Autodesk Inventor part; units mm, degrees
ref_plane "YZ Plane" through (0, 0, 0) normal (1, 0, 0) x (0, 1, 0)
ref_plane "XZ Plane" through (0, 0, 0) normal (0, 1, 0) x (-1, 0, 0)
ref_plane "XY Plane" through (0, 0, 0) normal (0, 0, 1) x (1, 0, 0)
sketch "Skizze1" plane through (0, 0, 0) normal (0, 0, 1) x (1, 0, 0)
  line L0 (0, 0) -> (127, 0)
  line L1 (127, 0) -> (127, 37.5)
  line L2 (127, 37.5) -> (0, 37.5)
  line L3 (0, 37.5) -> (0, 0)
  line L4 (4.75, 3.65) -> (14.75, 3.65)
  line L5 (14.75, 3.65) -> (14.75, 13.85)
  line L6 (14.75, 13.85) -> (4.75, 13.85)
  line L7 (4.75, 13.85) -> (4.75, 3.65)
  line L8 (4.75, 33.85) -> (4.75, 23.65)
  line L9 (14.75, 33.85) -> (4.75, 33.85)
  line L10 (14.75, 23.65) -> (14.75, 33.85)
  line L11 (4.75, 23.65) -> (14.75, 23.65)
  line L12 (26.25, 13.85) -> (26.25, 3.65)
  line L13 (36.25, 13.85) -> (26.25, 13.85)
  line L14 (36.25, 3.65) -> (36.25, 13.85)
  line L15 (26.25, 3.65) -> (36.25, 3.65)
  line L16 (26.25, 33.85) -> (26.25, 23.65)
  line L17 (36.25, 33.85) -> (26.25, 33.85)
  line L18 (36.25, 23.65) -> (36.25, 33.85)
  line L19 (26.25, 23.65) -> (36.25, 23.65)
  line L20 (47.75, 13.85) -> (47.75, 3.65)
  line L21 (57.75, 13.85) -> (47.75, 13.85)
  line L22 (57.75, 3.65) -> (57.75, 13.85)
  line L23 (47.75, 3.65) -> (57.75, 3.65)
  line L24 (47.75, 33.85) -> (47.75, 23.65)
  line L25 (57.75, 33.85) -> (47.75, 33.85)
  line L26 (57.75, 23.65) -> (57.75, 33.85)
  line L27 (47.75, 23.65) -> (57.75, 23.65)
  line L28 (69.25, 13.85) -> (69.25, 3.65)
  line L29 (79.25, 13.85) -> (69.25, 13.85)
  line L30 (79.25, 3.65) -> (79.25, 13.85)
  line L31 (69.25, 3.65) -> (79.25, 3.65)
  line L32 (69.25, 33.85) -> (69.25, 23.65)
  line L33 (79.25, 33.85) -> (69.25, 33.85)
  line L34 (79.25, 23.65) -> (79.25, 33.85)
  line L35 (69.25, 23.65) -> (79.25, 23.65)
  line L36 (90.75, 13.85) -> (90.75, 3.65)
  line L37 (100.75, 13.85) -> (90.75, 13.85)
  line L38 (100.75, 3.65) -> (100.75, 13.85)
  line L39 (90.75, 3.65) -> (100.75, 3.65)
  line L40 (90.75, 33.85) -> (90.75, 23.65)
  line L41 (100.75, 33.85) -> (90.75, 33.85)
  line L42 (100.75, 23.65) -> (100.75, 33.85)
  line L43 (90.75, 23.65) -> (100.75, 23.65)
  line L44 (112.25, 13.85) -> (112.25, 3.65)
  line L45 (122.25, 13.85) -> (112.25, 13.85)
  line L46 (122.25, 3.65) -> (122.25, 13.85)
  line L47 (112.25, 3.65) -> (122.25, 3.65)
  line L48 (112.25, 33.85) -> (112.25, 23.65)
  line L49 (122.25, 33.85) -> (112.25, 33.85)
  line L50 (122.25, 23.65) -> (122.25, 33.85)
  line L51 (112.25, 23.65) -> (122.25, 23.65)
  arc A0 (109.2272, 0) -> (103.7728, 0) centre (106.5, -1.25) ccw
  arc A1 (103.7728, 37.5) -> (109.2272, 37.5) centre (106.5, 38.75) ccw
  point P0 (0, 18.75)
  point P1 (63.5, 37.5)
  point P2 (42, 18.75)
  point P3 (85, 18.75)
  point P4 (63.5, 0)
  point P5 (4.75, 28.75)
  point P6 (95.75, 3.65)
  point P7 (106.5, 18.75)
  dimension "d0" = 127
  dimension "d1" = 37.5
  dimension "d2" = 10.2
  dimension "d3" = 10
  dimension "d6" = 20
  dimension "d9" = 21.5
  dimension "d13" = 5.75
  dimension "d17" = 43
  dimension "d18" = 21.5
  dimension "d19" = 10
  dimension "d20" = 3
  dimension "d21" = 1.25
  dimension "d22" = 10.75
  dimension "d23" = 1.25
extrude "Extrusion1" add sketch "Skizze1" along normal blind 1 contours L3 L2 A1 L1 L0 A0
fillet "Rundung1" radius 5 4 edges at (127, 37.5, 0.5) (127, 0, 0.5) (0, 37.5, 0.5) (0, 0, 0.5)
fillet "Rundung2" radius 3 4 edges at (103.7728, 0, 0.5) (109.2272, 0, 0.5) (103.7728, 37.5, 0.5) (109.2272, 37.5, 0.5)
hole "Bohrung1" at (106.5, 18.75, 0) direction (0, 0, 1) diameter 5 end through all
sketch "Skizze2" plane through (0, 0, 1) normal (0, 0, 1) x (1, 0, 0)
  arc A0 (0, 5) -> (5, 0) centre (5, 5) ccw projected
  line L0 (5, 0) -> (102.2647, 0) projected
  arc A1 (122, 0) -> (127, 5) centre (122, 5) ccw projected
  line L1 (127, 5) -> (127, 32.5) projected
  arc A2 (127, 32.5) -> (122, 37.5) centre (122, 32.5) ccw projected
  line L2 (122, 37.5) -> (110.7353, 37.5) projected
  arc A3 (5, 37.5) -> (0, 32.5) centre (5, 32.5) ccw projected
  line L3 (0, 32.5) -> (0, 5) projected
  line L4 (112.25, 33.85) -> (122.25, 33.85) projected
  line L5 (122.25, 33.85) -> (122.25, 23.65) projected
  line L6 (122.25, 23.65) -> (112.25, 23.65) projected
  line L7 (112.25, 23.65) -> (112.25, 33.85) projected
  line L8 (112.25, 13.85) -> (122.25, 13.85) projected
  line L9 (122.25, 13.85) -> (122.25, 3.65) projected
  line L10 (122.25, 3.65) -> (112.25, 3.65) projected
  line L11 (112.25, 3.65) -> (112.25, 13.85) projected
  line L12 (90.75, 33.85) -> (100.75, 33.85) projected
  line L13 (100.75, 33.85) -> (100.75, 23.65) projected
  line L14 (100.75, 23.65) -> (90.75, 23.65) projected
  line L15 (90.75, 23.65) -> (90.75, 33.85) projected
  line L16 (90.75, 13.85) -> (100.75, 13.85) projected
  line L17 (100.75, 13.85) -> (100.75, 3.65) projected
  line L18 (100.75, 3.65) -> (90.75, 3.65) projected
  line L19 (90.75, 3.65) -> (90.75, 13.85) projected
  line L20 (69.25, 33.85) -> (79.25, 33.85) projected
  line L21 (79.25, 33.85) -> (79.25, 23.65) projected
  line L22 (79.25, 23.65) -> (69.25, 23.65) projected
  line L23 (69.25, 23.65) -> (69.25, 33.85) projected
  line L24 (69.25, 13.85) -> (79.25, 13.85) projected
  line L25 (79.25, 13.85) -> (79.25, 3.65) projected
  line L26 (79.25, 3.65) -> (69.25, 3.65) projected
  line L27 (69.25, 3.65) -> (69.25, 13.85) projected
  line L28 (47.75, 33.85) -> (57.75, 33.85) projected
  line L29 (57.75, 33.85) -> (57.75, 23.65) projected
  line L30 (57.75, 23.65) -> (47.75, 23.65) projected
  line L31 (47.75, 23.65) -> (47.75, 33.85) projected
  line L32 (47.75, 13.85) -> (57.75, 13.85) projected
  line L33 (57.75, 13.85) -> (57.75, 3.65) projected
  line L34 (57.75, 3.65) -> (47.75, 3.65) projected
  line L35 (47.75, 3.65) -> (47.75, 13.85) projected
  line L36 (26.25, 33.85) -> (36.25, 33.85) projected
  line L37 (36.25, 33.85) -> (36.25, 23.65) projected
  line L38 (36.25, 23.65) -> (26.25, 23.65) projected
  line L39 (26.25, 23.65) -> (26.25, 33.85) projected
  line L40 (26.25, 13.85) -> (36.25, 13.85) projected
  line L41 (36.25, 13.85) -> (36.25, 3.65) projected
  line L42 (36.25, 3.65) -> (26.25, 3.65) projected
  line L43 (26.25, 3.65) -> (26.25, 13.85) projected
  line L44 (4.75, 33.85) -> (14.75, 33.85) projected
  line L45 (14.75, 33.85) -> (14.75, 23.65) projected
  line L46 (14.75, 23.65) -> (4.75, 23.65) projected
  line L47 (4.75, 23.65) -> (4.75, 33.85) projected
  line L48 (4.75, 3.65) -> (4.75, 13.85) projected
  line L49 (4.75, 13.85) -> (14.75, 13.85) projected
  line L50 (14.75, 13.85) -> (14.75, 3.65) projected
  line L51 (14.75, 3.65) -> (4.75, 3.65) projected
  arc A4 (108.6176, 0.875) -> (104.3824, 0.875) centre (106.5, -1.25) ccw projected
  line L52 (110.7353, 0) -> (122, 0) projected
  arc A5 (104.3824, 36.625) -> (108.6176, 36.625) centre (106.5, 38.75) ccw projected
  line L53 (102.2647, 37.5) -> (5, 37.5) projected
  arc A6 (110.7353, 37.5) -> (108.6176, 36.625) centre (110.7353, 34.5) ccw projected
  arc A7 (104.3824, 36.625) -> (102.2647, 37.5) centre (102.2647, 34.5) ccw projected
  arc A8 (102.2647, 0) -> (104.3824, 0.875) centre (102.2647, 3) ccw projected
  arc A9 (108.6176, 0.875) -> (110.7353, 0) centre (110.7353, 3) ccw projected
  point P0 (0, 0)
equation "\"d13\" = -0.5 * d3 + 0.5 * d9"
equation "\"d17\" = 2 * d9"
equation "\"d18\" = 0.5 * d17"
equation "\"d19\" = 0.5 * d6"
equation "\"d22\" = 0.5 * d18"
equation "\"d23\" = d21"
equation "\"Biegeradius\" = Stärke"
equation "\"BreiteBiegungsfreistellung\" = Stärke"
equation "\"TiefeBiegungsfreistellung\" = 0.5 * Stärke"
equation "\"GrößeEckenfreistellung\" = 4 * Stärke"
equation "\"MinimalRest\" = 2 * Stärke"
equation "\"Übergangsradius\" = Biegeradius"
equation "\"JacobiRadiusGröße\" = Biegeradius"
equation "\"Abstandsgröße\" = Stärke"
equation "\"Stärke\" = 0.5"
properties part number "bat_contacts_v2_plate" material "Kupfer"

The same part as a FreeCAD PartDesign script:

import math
import FreeCAD as App
import Part
import Sketcher


def edges_at(feature, points):
    """Names of the edges that pass closest to the given points."""
    edges = feature.Shape.Edges
    near = lambda p: min(range(len(edges)), key=lambda i: edges[i].distToShape(Part.Vertex(*p))[0])
    return sorted({f"Edge{near(p) + 1}" for p in points})


def add_polygon(sketch, points):
    """Adds a closed chain of lines whose ends are joined by coincident constraints."""
    first, n = sketch.GeometryCount, len(points)
    for a, b in zip(points, points[1:] + points[:1]):
        sketch.addGeometry(Part.LineSegment(App.Vector(*a, 0), App.Vector(*b, 0)), False)
    for i in range(n):
        sketch.addConstraint(Sketcher.Constraint("Coincident", first + i, 2, first + (i + 1) % n, 1))

doc = App.newDocument("Part")
body = doc.addObject("PartDesign::Body", "Body")

sketch1 = body.newObject("Sketcher::SketchObject", "Sketch")
sketch1.AttachmentSupport = (doc.getObject("XY_Plane"), [""])
sketch1.MapMode = "FlatFace"
sketch1.addGeometry(Part.LineSegment(App.Vector(0, 37.5, 0), App.Vector(0, 0, 0)), False)
sketch1.addGeometry(Part.LineSegment(App.Vector(0, 0, 0), App.Vector(103.8, 0, 0)), False)
sketch1.addGeometry(Part.ArcOfCircle(Part.Circle(App.Vector(106.5, -1.2, 0), App.Vector(0, 0, 1), 3), math.radians(25), math.radians(155)), False)
sketch1.addGeometry(Part.LineSegment(App.Vector(109.2, 0, 0), App.Vector(127, 0, 0)), False)
sketch1.addGeometry(Part.LineSegment(App.Vector(127, 0, 0), App.Vector(127, 37.5, 0)), False)
sketch1.addGeometry(Part.LineSegment(App.Vector(127, 37.5, 0), App.Vector(109.2, 37.5, 0)), False)
sketch1.addGeometry(Part.ArcOfCircle(Part.Circle(App.Vector(106.5, 38.8, 0), App.Vector(0, 0, 1), 3), math.radians(-155), math.radians(-25)), False)
sketch1.addGeometry(Part.LineSegment(App.Vector(103.8, 37.5, 0), App.Vector(0, 37.5, 0)), False)
add_polygon(sketch1, [(14.8, 3.6), (4.8, 3.6), (4.8, 13.8), (14.8, 13.8)])
add_polygon(sketch1, [(26.2, 3.6), (26.2, 13.8), (36.2, 13.8), (36.2, 3.6)])
add_polygon(sketch1, [(47.8, 3.6), (47.8, 13.8), (57.8, 13.8), (57.8, 3.6)])
add_polygon(sketch1, [(69.2, 3.6), (69.2, 13.8), (79.2, 13.8), (79.2, 3.6)])
add_polygon(sketch1, [(90.8, 3.6), (90.8, 13.8), (100.8, 13.8), (100.8, 3.6)])
add_polygon(sketch1, [(112.2, 3.6), (112.2, 13.8), (122.2, 13.8), (122.2, 3.6)])
add_polygon(sketch1, [(4.8, 23.6), (4.8, 33.9), (14.8, 33.9), (14.8, 23.6)])
add_polygon(sketch1, [(26.2, 23.6), (26.2, 33.9), (36.2, 33.9), (36.2, 23.6)])
add_polygon(sketch1, [(47.8, 23.6), (47.8, 33.9), (57.8, 33.9), (57.8, 23.6)])
add_polygon(sketch1, [(69.2, 23.6), (69.2, 33.9), (79.2, 33.9), (79.2, 23.6)])
add_polygon(sketch1, [(90.8, 23.6), (90.8, 33.9), (100.8, 33.9), (100.8, 23.6)])
add_polygon(sketch1, [(112.2, 23.6), (112.2, 33.9), (122.2, 33.9), (122.2, 23.6)])
sketch1.addConstraint(Sketcher.Constraint("Coincident", 0, 2, 1, 1))
sketch1.addConstraint(Sketcher.Constraint("Coincident", 1, 2, 2, 2))
sketch1.addConstraint(Sketcher.Constraint("Coincident", 2, 1, 3, 1))
sketch1.addConstraint(Sketcher.Constraint("Coincident", 3, 2, 4, 1))
sketch1.addConstraint(Sketcher.Constraint("Coincident", 4, 2, 5, 1))
sketch1.addConstraint(Sketcher.Constraint("Coincident", 5, 2, 6, 2))
sketch1.addConstraint(Sketcher.Constraint("Coincident", 6, 1, 7, 1))
sketch1.addConstraint(Sketcher.Constraint("Coincident", 7, 2, 0, 1))
sketch1.addConstraint(Sketcher.Constraint("Vertical", 0))
sketch1.addConstraint(Sketcher.Constraint("Horizontal", 1))
sketch1.addConstraint(Sketcher.Constraint("Horizontal", 3))
sketch1.addConstraint(Sketcher.Constraint("Vertical", 4))
sketch1.addConstraint(Sketcher.Constraint("Horizontal", 5))
sketch1.addConstraint(Sketcher.Constraint("Horizontal", 7))
sketch1.addConstraint(Sketcher.Constraint("Horizontal", 8))
sketch1.addConstraint(Sketcher.Constraint("Vertical", 9))
sketch1.addConstraint(Sketcher.Constraint("Horizontal", 10))
sketch1.addConstraint(Sketcher.Constraint("Vertical", 11))
sketch1.addConstraint(Sketcher.Constraint("Vertical", 12))
sketch1.addConstraint(Sketcher.Constraint("Horizontal", 13))
sketch1.addConstraint(Sketcher.Constraint("Vertical", 14))
sketch1.addConstraint(Sketcher.Constraint("Horizontal", 15))
sketch1.addConstraint(Sketcher.Constraint("Vertical", 16))
sketch1.addConstraint(Sketcher.Constraint("Horizontal", 17))
sketch1.addConstraint(Sketcher.Constraint("Vertical", 18))
sketch1.addConstraint(Sketcher.Constraint("Horizontal", 19))
sketch1.addConstraint(Sketcher.Constraint("Vertical", 20))
sketch1.addConstraint(Sketcher.Constraint("Horizontal", 21))
sketch1.addConstraint(Sketcher.Constraint("Vertical", 22))
sketch1.addConstraint(Sketcher.Constraint("Horizontal", 23))
sketch1.addConstraint(Sketcher.Constraint("Vertical", 24))
sketch1.addConstraint(Sketcher.Constraint("Horizontal", 25))
sketch1.addConstraint(Sketcher.Constraint("Vertical", 26))
sketch1.addConstraint(Sketcher.Constraint("Horizontal", 27))
sketch1.addConstraint(Sketcher.Constraint("Vertical", 28))
sketch1.addConstraint(Sketcher.Constraint("Horizontal", 29))
sketch1.addConstraint(Sketcher.Constraint("Vertical", 30))
sketch1.addConstraint(Sketcher.Constraint("Horizontal", 31))
sketch1.addConstraint(Sketcher.Constraint("Vertical", 32))
sketch1.addConstraint(Sketcher.Constraint("Horizontal", 33))
sketch1.addConstraint(Sketcher.Constraint("Vertical", 34))
sketch1.addConstraint(Sketcher.Constraint("Horizontal", 35))
sketch1.addConstraint(Sketcher.Constraint("Vertical", 36))
sketch1.addConstraint(Sketcher.Constraint("Horizontal", 37))
sketch1.addConstraint(Sketcher.Constraint("Vertical", 38))
sketch1.addConstraint(Sketcher.Constraint("Horizontal", 39))
sketch1.addConstraint(Sketcher.Constraint("Vertical", 40))
sketch1.addConstraint(Sketcher.Constraint("Horizontal", 41))
sketch1.addConstraint(Sketcher.Constraint("Vertical", 42))
sketch1.addConstraint(Sketcher.Constraint("Horizontal", 43))
sketch1.addConstraint(Sketcher.Constraint("Vertical", 44))
sketch1.addConstraint(Sketcher.Constraint("Horizontal", 45))
sketch1.addConstraint(Sketcher.Constraint("Vertical", 46))
sketch1.addConstraint(Sketcher.Constraint("Horizontal", 47))
sketch1.addConstraint(Sketcher.Constraint("Vertical", 48))
sketch1.addConstraint(Sketcher.Constraint("Horizontal", 49))
sketch1.addConstraint(Sketcher.Constraint("Vertical", 50))
sketch1.addConstraint(Sketcher.Constraint("Horizontal", 51))
sketch1.addConstraint(Sketcher.Constraint("Vertical", 52))
sketch1.addConstraint(Sketcher.Constraint("Horizontal", 53))
sketch1.addConstraint(Sketcher.Constraint("Vertical", 54))
sketch1.addConstraint(Sketcher.Constraint("Horizontal", 55))
sketch1.addConstraint(Sketcher.Constraint("Coincident", 0, 2, -1, 1))
sketch1.addConstraint(Sketcher.Constraint("Equal", 2, 6))
sketch1.addConstraint(Sketcher.Constraint("PointOnObject", 2, 1, -1))
sketch1.addConstraint(Sketcher.Constraint("Horizontal", 5, 2, 6, 1))
sketch1.addConstraint(Sketcher.Constraint("Horizontal", 10, 2, 12, 2))
sketch1.addConstraint(Sketcher.Constraint("Horizontal", 11, 2, 14, 2))
sketch1.addConstraint(Sketcher.Constraint("Horizontal", 13, 2, 16, 2))
sketch1.addConstraint(Sketcher.Constraint("Horizontal", 15, 2, 18, 2))
sketch1.addConstraint(Sketcher.Constraint("Horizontal", 17, 2, 20, 2))
sketch1.addConstraint(Sketcher.Constraint("Horizontal", 19, 2, 22, 2))
sketch1.addConstraint(Sketcher.Constraint("Horizontal", 21, 2, 24, 2))
sketch1.addConstraint(Sketcher.Constraint("Horizontal", 23, 2, 26, 2))
sketch1.addConstraint(Sketcher.Constraint("Horizontal", 25, 2, 28, 2))
sketch1.addConstraint(Sketcher.Constraint("Horizontal", 27, 2, 30, 2))
sketch1.addConstraint(Sketcher.Constraint("Horizontal", 33, 2, 36, 2))
sketch1.addConstraint(Sketcher.Constraint("Horizontal", 35, 2, 38, 2))
sketch1.addConstraint(Sketcher.Constraint("Horizontal", 37, 2, 40, 2))
sketch1.addConstraint(Sketcher.Constraint("Horizontal", 39, 2, 42, 2))
sketch1.addConstraint(Sketcher.Constraint("Horizontal", 41, 2, 44, 2))
sketch1.addConstraint(Sketcher.Constraint("Horizontal", 43, 2, 46, 2))
sketch1.addConstraint(Sketcher.Constraint("Horizontal", 45, 2, 48, 2))
sketch1.addConstraint(Sketcher.Constraint("Horizontal", 47, 2, 50, 2))
sketch1.addConstraint(Sketcher.Constraint("Horizontal", 49, 2, 52, 2))
sketch1.addConstraint(Sketcher.Constraint("Horizontal", 51, 2, 54, 2))
sketch1.addConstraint(Sketcher.Constraint("Vertical", 2, 3, 6, 3))
sketch1.addConstraint(Sketcher.Constraint("Vertical", 2, 1, 5, 2))
sketch1.addConstraint(Sketcher.Constraint("Vertical", 9, 2, 32, 2))
sketch1.addConstraint(Sketcher.Constraint("Vertical", 11, 2, 33, 2))
sketch1.addConstraint(Sketcher.Constraint("Vertical", 15, 2, 36, 2))
sketch1.addConstraint(Sketcher.Constraint("Vertical", 14, 2, 37, 2))
sketch1.addConstraint(Sketcher.Constraint("Vertical", 19, 2, 40, 2))
sketch1.addConstraint(Sketcher.Constraint("Vertical", 18, 2, 41, 2))
sketch1.addConstraint(Sketcher.Constraint("Vertical", 23, 2, 44, 2))
sketch1.addConstraint(Sketcher.Constraint("Vertical", 22, 2, 45, 2))
sketch1.addConstraint(Sketcher.Constraint("Vertical", 27, 2, 48, 2))
sketch1.addConstraint(Sketcher.Constraint("Vertical", 26, 2, 49, 2))
sketch1.addConstraint(Sketcher.Constraint("Vertical", 31, 2, 52, 2))
sketch1.addConstraint(Sketcher.Constraint("Vertical", 30, 2, 53, 2))
sketch1.addConstraint(Sketcher.Constraint("Equal", 10, 13))
sketch1.addConstraint(Sketcher.Constraint("Equal", 15, 17))
sketch1.addConstraint(Sketcher.Constraint("Equal", 19, 21))
sketch1.addConstraint(Sketcher.Constraint("Equal", 23, 25))
sketch1.addConstraint(Sketcher.Constraint("Equal", 27, 29))
sketch1.addConstraint(Sketcher.Constraint("Equal", 30, 32))
sketch1.addConstraint(Sketcher.Constraint("Radius", 2, 3.0))
sketch1.addConstraint(Sketcher.Constraint("DistanceX", 8, 2, 8, 1, 10.0))
sketch1.addConstraint(Sketcher.Constraint("DistanceY", 0, 2, 0, 1, 37.5))
sketch1.addConstraint(Sketcher.Constraint("DistanceY", 9, 1, 9, 2, 10.2))
sketch1.addConstraint(Sketcher.Constraint("DistanceX", -1, 1, 3, 2, 127.0))
sketch1.addConstraint(Sketcher.Constraint("DistanceY", 9, 2, 32, 2, 20.0))
sketch1.addConstraint(Sketcher.Constraint("DistanceX", 9, 2, 12, 2, 21.5))
sketch1.addConstraint(Sketcher.Constraint("DistanceX", 12, 2, 16, 2, 21.5))
sketch1.addConstraint(Sketcher.Constraint("DistanceX", 16, 2, 20, 2, 21.5))
sketch1.addConstraint(Sketcher.Constraint("DistanceX", 20, 2, 24, 2, 21.5))
sketch1.addConstraint(Sketcher.Constraint("DistanceX", 25, 2, 29, 2, 21.5))
sketch1.addConstraint(Sketcher.Constraint("DistanceY", 2, 3, -1, 1, 1.25))
sketch1.addConstraint(Sketcher.Constraint("DistanceX", 25, 2, 2, 3, 5.75))
sketch1.addConstraint(Sketcher.Constraint("DistanceX", -1, 1, 2, 3, 106.5))
sketch1.addConstraint(Sketcher.Constraint("DistanceY", 2, 3, 8, 2, 4.9))
pad1 = body.newObject("PartDesign::Pad", "Pad")
pad1.Profile = sketch1
pad1.Length = 1
doc.recompute()

fillet = body.newObject("PartDesign::Fillet", "Fillet")
fillet.Base = (pad1, edges_at(pad1, [
    (127, 37.5, 0.5),
    (127, 0, 0.5),
    (0, 37.5, 0.5),
    (0, 0, 0.5),
]))
fillet.Radius = 5
doc.recompute()

fillet2 = body.newObject("PartDesign::Fillet", "Fillet001")
fillet2.Base = (fillet, edges_at(fillet, [
    (103.773, 0, 0.5),
    (109.227, 0, 0.5),
    (103.773, 37.5, 0.5),
    (109.227, 37.5, 0.5),
]))
fillet2.Radius = 3

sketch2 = body.newObject("Sketcher::SketchObject", "Sketch001")
sketch2.AttachmentSupport = (doc.getObject("XY_Plane"), [""])
sketch2.MapMode = "FlatFace"
sketch2.addGeometry(Part.Circle(App.Vector(106.5, 18.8, 0), App.Vector(0, 0, 1), 2.5), False)
sketch2.addConstraint(Sketcher.Constraint("Diameter", 0, 5.0))
sketch2.addConstraint(Sketcher.Constraint("DistanceX", -1, 1, 0, 3, 106.5))
sketch2.addConstraint(Sketcher.Constraint("DistanceY", -1, 1, 0, 3, 18.75))
doc.recompute()
hole = body.newObject("PartDesign::Hole", "Hole")
hole.Profile = sketch2
hole.ThreadType = "None"
hole.Diameter = 5
hole.DepthType = "ThroughAll"
hole.Reversed = True

doc.recompute()
